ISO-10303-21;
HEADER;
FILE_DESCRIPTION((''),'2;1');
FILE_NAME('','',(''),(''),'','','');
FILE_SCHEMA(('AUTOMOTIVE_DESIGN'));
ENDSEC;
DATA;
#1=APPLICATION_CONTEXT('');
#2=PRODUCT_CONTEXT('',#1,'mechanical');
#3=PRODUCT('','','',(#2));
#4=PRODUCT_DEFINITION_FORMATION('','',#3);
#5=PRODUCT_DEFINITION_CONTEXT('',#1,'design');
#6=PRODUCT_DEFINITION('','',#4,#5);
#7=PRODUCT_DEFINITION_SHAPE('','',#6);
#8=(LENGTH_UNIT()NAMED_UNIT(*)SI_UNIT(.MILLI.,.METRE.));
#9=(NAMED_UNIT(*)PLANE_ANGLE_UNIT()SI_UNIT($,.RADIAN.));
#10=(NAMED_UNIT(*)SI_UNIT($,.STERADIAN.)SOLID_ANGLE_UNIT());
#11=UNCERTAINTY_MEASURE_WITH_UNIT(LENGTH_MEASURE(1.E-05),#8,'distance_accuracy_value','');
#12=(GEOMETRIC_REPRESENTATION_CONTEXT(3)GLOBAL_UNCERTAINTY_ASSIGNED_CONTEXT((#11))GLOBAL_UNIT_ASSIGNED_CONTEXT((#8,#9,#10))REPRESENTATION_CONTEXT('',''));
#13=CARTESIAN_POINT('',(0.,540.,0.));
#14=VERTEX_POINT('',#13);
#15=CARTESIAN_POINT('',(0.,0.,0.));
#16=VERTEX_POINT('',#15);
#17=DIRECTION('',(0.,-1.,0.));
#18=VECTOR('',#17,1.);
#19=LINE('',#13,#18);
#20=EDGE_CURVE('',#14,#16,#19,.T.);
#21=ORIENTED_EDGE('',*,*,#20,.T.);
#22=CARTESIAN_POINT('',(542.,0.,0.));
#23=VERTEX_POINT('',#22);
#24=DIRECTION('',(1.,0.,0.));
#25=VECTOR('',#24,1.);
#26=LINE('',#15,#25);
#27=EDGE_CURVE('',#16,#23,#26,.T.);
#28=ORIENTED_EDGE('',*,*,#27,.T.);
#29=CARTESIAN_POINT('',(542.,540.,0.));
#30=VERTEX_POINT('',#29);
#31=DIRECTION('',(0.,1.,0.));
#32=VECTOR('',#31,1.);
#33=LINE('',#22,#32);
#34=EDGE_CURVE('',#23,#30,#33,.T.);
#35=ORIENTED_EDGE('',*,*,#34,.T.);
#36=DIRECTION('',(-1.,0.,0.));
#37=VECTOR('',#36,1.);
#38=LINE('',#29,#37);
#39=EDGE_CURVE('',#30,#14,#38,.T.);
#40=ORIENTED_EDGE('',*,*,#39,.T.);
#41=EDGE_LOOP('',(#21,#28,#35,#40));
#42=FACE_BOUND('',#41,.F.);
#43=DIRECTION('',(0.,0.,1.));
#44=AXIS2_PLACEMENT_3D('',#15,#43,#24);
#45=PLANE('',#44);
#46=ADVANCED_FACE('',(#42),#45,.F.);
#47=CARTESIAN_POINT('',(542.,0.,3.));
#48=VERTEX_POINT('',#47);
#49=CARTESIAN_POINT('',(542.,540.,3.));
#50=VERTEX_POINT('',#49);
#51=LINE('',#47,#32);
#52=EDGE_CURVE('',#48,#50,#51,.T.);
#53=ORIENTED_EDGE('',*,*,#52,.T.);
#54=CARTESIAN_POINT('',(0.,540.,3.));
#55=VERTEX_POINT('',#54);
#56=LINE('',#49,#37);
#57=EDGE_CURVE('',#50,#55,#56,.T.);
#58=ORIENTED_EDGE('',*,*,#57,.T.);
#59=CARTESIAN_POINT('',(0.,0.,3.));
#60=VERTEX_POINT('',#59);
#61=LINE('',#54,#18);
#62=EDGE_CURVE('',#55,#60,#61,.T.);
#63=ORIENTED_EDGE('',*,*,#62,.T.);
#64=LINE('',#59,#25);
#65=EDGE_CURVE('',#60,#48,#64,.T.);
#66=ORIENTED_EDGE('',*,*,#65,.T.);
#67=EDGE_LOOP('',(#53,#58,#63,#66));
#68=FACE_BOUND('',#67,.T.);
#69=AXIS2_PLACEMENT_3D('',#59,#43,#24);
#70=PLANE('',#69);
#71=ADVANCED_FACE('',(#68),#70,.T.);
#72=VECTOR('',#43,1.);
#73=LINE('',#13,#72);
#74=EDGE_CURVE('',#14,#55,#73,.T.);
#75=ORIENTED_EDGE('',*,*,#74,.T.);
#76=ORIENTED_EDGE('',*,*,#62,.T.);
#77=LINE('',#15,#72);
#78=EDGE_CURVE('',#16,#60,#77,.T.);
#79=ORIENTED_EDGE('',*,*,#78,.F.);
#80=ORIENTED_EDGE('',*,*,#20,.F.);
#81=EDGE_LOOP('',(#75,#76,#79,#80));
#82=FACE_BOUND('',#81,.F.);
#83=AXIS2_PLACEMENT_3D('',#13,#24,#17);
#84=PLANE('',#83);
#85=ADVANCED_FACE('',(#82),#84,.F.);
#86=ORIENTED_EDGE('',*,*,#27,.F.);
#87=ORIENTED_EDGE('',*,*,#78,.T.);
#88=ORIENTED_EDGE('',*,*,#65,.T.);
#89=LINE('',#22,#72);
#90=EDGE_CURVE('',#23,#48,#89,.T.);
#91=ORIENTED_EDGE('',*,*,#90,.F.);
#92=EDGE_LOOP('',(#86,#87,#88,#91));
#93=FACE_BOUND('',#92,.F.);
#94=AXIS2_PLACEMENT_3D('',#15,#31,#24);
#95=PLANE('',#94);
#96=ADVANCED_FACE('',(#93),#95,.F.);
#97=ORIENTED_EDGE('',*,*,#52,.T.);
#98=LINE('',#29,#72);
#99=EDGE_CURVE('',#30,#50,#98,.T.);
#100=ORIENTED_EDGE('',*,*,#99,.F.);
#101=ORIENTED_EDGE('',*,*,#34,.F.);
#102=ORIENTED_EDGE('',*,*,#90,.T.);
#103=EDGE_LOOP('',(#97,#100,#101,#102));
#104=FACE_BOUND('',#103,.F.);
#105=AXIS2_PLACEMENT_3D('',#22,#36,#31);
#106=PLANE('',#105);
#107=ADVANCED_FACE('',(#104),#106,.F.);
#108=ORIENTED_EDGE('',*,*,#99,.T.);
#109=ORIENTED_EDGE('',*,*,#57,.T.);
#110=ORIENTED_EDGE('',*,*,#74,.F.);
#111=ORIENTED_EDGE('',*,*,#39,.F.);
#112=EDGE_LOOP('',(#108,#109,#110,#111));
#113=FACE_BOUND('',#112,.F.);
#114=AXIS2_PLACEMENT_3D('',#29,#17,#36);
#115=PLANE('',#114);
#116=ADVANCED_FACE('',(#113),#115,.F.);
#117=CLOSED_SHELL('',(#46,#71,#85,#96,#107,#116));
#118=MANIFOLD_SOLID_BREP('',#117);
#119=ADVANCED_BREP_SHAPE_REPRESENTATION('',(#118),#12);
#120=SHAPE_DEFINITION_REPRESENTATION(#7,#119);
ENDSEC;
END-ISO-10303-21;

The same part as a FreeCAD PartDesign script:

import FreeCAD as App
import Part
import Sketcher
from FreeCAD import Vector

doc = App.newDocument("Part")
body = doc.addObject("PartDesign::Body", "Body")

# Sketch on XY plane
sketch1 = doc.addObject("Sketcher::SketchObject", "Sketch")
body.addObject(sketch1)
sketch1.AttachmentSupport = (doc.XY_Plane, [""])
sketch1.MapMode = "FlatFace"
sketch1.addGeometry(Part.LineSegment(Vector(0, 540, 0), Vector(0, 0, 0)), False)
sketch1.addGeometry(Part.LineSegment(Vector(0, 0, 0), Vector(542, 0, 0)), False)
sketch1.addGeometry(Part.LineSegment(Vector(542, 0, 0), Vector(542, 540, 0)), False)
sketch1.addGeometry(Part.LineSegment(Vector(542, 540, 0), Vector(0, 540, 0)), False)
sketch1.addConstraint(Sketcher.Constraint("Coincident", 0, 2, 1, 1))
sketch1.addConstraint(Sketcher.Constraint("Coincident", 1, 2, 2, 1))
sketch1.addConstraint(Sketcher.Constraint("Coincident", 2, 2, 3, 1))
sketch1.addConstraint(Sketcher.Constraint("Coincident", 3, 2, 0, 1))
sketch1.addConstraint(Sketcher.Constraint("Vertical", 0))
sketch1.addConstraint(Sketcher.Constraint("Horizontal", 1))
sketch1.addConstraint(Sketcher.Constraint("Vertical", 2))
sketch1.addConstraint(Sketcher.Constraint("Horizontal", 3))
sketch1.addConstraint(Sketcher.Constraint("Coincident", 0, 2, -1, 1))
sketch1.addConstraint(Sketcher.Constraint("DistanceX", 1, 1, 1, 2, 542.0))
sketch1.addConstraint(Sketcher.Constraint("DistanceY", 0, 2, 0, 1, 540.0))
pad1 = doc.addObject("PartDesign::Pad", "Pad")
body.addObject(pad1)
pad1.Profile = sketch1
pad1.Length = 3

doc.recompute()
